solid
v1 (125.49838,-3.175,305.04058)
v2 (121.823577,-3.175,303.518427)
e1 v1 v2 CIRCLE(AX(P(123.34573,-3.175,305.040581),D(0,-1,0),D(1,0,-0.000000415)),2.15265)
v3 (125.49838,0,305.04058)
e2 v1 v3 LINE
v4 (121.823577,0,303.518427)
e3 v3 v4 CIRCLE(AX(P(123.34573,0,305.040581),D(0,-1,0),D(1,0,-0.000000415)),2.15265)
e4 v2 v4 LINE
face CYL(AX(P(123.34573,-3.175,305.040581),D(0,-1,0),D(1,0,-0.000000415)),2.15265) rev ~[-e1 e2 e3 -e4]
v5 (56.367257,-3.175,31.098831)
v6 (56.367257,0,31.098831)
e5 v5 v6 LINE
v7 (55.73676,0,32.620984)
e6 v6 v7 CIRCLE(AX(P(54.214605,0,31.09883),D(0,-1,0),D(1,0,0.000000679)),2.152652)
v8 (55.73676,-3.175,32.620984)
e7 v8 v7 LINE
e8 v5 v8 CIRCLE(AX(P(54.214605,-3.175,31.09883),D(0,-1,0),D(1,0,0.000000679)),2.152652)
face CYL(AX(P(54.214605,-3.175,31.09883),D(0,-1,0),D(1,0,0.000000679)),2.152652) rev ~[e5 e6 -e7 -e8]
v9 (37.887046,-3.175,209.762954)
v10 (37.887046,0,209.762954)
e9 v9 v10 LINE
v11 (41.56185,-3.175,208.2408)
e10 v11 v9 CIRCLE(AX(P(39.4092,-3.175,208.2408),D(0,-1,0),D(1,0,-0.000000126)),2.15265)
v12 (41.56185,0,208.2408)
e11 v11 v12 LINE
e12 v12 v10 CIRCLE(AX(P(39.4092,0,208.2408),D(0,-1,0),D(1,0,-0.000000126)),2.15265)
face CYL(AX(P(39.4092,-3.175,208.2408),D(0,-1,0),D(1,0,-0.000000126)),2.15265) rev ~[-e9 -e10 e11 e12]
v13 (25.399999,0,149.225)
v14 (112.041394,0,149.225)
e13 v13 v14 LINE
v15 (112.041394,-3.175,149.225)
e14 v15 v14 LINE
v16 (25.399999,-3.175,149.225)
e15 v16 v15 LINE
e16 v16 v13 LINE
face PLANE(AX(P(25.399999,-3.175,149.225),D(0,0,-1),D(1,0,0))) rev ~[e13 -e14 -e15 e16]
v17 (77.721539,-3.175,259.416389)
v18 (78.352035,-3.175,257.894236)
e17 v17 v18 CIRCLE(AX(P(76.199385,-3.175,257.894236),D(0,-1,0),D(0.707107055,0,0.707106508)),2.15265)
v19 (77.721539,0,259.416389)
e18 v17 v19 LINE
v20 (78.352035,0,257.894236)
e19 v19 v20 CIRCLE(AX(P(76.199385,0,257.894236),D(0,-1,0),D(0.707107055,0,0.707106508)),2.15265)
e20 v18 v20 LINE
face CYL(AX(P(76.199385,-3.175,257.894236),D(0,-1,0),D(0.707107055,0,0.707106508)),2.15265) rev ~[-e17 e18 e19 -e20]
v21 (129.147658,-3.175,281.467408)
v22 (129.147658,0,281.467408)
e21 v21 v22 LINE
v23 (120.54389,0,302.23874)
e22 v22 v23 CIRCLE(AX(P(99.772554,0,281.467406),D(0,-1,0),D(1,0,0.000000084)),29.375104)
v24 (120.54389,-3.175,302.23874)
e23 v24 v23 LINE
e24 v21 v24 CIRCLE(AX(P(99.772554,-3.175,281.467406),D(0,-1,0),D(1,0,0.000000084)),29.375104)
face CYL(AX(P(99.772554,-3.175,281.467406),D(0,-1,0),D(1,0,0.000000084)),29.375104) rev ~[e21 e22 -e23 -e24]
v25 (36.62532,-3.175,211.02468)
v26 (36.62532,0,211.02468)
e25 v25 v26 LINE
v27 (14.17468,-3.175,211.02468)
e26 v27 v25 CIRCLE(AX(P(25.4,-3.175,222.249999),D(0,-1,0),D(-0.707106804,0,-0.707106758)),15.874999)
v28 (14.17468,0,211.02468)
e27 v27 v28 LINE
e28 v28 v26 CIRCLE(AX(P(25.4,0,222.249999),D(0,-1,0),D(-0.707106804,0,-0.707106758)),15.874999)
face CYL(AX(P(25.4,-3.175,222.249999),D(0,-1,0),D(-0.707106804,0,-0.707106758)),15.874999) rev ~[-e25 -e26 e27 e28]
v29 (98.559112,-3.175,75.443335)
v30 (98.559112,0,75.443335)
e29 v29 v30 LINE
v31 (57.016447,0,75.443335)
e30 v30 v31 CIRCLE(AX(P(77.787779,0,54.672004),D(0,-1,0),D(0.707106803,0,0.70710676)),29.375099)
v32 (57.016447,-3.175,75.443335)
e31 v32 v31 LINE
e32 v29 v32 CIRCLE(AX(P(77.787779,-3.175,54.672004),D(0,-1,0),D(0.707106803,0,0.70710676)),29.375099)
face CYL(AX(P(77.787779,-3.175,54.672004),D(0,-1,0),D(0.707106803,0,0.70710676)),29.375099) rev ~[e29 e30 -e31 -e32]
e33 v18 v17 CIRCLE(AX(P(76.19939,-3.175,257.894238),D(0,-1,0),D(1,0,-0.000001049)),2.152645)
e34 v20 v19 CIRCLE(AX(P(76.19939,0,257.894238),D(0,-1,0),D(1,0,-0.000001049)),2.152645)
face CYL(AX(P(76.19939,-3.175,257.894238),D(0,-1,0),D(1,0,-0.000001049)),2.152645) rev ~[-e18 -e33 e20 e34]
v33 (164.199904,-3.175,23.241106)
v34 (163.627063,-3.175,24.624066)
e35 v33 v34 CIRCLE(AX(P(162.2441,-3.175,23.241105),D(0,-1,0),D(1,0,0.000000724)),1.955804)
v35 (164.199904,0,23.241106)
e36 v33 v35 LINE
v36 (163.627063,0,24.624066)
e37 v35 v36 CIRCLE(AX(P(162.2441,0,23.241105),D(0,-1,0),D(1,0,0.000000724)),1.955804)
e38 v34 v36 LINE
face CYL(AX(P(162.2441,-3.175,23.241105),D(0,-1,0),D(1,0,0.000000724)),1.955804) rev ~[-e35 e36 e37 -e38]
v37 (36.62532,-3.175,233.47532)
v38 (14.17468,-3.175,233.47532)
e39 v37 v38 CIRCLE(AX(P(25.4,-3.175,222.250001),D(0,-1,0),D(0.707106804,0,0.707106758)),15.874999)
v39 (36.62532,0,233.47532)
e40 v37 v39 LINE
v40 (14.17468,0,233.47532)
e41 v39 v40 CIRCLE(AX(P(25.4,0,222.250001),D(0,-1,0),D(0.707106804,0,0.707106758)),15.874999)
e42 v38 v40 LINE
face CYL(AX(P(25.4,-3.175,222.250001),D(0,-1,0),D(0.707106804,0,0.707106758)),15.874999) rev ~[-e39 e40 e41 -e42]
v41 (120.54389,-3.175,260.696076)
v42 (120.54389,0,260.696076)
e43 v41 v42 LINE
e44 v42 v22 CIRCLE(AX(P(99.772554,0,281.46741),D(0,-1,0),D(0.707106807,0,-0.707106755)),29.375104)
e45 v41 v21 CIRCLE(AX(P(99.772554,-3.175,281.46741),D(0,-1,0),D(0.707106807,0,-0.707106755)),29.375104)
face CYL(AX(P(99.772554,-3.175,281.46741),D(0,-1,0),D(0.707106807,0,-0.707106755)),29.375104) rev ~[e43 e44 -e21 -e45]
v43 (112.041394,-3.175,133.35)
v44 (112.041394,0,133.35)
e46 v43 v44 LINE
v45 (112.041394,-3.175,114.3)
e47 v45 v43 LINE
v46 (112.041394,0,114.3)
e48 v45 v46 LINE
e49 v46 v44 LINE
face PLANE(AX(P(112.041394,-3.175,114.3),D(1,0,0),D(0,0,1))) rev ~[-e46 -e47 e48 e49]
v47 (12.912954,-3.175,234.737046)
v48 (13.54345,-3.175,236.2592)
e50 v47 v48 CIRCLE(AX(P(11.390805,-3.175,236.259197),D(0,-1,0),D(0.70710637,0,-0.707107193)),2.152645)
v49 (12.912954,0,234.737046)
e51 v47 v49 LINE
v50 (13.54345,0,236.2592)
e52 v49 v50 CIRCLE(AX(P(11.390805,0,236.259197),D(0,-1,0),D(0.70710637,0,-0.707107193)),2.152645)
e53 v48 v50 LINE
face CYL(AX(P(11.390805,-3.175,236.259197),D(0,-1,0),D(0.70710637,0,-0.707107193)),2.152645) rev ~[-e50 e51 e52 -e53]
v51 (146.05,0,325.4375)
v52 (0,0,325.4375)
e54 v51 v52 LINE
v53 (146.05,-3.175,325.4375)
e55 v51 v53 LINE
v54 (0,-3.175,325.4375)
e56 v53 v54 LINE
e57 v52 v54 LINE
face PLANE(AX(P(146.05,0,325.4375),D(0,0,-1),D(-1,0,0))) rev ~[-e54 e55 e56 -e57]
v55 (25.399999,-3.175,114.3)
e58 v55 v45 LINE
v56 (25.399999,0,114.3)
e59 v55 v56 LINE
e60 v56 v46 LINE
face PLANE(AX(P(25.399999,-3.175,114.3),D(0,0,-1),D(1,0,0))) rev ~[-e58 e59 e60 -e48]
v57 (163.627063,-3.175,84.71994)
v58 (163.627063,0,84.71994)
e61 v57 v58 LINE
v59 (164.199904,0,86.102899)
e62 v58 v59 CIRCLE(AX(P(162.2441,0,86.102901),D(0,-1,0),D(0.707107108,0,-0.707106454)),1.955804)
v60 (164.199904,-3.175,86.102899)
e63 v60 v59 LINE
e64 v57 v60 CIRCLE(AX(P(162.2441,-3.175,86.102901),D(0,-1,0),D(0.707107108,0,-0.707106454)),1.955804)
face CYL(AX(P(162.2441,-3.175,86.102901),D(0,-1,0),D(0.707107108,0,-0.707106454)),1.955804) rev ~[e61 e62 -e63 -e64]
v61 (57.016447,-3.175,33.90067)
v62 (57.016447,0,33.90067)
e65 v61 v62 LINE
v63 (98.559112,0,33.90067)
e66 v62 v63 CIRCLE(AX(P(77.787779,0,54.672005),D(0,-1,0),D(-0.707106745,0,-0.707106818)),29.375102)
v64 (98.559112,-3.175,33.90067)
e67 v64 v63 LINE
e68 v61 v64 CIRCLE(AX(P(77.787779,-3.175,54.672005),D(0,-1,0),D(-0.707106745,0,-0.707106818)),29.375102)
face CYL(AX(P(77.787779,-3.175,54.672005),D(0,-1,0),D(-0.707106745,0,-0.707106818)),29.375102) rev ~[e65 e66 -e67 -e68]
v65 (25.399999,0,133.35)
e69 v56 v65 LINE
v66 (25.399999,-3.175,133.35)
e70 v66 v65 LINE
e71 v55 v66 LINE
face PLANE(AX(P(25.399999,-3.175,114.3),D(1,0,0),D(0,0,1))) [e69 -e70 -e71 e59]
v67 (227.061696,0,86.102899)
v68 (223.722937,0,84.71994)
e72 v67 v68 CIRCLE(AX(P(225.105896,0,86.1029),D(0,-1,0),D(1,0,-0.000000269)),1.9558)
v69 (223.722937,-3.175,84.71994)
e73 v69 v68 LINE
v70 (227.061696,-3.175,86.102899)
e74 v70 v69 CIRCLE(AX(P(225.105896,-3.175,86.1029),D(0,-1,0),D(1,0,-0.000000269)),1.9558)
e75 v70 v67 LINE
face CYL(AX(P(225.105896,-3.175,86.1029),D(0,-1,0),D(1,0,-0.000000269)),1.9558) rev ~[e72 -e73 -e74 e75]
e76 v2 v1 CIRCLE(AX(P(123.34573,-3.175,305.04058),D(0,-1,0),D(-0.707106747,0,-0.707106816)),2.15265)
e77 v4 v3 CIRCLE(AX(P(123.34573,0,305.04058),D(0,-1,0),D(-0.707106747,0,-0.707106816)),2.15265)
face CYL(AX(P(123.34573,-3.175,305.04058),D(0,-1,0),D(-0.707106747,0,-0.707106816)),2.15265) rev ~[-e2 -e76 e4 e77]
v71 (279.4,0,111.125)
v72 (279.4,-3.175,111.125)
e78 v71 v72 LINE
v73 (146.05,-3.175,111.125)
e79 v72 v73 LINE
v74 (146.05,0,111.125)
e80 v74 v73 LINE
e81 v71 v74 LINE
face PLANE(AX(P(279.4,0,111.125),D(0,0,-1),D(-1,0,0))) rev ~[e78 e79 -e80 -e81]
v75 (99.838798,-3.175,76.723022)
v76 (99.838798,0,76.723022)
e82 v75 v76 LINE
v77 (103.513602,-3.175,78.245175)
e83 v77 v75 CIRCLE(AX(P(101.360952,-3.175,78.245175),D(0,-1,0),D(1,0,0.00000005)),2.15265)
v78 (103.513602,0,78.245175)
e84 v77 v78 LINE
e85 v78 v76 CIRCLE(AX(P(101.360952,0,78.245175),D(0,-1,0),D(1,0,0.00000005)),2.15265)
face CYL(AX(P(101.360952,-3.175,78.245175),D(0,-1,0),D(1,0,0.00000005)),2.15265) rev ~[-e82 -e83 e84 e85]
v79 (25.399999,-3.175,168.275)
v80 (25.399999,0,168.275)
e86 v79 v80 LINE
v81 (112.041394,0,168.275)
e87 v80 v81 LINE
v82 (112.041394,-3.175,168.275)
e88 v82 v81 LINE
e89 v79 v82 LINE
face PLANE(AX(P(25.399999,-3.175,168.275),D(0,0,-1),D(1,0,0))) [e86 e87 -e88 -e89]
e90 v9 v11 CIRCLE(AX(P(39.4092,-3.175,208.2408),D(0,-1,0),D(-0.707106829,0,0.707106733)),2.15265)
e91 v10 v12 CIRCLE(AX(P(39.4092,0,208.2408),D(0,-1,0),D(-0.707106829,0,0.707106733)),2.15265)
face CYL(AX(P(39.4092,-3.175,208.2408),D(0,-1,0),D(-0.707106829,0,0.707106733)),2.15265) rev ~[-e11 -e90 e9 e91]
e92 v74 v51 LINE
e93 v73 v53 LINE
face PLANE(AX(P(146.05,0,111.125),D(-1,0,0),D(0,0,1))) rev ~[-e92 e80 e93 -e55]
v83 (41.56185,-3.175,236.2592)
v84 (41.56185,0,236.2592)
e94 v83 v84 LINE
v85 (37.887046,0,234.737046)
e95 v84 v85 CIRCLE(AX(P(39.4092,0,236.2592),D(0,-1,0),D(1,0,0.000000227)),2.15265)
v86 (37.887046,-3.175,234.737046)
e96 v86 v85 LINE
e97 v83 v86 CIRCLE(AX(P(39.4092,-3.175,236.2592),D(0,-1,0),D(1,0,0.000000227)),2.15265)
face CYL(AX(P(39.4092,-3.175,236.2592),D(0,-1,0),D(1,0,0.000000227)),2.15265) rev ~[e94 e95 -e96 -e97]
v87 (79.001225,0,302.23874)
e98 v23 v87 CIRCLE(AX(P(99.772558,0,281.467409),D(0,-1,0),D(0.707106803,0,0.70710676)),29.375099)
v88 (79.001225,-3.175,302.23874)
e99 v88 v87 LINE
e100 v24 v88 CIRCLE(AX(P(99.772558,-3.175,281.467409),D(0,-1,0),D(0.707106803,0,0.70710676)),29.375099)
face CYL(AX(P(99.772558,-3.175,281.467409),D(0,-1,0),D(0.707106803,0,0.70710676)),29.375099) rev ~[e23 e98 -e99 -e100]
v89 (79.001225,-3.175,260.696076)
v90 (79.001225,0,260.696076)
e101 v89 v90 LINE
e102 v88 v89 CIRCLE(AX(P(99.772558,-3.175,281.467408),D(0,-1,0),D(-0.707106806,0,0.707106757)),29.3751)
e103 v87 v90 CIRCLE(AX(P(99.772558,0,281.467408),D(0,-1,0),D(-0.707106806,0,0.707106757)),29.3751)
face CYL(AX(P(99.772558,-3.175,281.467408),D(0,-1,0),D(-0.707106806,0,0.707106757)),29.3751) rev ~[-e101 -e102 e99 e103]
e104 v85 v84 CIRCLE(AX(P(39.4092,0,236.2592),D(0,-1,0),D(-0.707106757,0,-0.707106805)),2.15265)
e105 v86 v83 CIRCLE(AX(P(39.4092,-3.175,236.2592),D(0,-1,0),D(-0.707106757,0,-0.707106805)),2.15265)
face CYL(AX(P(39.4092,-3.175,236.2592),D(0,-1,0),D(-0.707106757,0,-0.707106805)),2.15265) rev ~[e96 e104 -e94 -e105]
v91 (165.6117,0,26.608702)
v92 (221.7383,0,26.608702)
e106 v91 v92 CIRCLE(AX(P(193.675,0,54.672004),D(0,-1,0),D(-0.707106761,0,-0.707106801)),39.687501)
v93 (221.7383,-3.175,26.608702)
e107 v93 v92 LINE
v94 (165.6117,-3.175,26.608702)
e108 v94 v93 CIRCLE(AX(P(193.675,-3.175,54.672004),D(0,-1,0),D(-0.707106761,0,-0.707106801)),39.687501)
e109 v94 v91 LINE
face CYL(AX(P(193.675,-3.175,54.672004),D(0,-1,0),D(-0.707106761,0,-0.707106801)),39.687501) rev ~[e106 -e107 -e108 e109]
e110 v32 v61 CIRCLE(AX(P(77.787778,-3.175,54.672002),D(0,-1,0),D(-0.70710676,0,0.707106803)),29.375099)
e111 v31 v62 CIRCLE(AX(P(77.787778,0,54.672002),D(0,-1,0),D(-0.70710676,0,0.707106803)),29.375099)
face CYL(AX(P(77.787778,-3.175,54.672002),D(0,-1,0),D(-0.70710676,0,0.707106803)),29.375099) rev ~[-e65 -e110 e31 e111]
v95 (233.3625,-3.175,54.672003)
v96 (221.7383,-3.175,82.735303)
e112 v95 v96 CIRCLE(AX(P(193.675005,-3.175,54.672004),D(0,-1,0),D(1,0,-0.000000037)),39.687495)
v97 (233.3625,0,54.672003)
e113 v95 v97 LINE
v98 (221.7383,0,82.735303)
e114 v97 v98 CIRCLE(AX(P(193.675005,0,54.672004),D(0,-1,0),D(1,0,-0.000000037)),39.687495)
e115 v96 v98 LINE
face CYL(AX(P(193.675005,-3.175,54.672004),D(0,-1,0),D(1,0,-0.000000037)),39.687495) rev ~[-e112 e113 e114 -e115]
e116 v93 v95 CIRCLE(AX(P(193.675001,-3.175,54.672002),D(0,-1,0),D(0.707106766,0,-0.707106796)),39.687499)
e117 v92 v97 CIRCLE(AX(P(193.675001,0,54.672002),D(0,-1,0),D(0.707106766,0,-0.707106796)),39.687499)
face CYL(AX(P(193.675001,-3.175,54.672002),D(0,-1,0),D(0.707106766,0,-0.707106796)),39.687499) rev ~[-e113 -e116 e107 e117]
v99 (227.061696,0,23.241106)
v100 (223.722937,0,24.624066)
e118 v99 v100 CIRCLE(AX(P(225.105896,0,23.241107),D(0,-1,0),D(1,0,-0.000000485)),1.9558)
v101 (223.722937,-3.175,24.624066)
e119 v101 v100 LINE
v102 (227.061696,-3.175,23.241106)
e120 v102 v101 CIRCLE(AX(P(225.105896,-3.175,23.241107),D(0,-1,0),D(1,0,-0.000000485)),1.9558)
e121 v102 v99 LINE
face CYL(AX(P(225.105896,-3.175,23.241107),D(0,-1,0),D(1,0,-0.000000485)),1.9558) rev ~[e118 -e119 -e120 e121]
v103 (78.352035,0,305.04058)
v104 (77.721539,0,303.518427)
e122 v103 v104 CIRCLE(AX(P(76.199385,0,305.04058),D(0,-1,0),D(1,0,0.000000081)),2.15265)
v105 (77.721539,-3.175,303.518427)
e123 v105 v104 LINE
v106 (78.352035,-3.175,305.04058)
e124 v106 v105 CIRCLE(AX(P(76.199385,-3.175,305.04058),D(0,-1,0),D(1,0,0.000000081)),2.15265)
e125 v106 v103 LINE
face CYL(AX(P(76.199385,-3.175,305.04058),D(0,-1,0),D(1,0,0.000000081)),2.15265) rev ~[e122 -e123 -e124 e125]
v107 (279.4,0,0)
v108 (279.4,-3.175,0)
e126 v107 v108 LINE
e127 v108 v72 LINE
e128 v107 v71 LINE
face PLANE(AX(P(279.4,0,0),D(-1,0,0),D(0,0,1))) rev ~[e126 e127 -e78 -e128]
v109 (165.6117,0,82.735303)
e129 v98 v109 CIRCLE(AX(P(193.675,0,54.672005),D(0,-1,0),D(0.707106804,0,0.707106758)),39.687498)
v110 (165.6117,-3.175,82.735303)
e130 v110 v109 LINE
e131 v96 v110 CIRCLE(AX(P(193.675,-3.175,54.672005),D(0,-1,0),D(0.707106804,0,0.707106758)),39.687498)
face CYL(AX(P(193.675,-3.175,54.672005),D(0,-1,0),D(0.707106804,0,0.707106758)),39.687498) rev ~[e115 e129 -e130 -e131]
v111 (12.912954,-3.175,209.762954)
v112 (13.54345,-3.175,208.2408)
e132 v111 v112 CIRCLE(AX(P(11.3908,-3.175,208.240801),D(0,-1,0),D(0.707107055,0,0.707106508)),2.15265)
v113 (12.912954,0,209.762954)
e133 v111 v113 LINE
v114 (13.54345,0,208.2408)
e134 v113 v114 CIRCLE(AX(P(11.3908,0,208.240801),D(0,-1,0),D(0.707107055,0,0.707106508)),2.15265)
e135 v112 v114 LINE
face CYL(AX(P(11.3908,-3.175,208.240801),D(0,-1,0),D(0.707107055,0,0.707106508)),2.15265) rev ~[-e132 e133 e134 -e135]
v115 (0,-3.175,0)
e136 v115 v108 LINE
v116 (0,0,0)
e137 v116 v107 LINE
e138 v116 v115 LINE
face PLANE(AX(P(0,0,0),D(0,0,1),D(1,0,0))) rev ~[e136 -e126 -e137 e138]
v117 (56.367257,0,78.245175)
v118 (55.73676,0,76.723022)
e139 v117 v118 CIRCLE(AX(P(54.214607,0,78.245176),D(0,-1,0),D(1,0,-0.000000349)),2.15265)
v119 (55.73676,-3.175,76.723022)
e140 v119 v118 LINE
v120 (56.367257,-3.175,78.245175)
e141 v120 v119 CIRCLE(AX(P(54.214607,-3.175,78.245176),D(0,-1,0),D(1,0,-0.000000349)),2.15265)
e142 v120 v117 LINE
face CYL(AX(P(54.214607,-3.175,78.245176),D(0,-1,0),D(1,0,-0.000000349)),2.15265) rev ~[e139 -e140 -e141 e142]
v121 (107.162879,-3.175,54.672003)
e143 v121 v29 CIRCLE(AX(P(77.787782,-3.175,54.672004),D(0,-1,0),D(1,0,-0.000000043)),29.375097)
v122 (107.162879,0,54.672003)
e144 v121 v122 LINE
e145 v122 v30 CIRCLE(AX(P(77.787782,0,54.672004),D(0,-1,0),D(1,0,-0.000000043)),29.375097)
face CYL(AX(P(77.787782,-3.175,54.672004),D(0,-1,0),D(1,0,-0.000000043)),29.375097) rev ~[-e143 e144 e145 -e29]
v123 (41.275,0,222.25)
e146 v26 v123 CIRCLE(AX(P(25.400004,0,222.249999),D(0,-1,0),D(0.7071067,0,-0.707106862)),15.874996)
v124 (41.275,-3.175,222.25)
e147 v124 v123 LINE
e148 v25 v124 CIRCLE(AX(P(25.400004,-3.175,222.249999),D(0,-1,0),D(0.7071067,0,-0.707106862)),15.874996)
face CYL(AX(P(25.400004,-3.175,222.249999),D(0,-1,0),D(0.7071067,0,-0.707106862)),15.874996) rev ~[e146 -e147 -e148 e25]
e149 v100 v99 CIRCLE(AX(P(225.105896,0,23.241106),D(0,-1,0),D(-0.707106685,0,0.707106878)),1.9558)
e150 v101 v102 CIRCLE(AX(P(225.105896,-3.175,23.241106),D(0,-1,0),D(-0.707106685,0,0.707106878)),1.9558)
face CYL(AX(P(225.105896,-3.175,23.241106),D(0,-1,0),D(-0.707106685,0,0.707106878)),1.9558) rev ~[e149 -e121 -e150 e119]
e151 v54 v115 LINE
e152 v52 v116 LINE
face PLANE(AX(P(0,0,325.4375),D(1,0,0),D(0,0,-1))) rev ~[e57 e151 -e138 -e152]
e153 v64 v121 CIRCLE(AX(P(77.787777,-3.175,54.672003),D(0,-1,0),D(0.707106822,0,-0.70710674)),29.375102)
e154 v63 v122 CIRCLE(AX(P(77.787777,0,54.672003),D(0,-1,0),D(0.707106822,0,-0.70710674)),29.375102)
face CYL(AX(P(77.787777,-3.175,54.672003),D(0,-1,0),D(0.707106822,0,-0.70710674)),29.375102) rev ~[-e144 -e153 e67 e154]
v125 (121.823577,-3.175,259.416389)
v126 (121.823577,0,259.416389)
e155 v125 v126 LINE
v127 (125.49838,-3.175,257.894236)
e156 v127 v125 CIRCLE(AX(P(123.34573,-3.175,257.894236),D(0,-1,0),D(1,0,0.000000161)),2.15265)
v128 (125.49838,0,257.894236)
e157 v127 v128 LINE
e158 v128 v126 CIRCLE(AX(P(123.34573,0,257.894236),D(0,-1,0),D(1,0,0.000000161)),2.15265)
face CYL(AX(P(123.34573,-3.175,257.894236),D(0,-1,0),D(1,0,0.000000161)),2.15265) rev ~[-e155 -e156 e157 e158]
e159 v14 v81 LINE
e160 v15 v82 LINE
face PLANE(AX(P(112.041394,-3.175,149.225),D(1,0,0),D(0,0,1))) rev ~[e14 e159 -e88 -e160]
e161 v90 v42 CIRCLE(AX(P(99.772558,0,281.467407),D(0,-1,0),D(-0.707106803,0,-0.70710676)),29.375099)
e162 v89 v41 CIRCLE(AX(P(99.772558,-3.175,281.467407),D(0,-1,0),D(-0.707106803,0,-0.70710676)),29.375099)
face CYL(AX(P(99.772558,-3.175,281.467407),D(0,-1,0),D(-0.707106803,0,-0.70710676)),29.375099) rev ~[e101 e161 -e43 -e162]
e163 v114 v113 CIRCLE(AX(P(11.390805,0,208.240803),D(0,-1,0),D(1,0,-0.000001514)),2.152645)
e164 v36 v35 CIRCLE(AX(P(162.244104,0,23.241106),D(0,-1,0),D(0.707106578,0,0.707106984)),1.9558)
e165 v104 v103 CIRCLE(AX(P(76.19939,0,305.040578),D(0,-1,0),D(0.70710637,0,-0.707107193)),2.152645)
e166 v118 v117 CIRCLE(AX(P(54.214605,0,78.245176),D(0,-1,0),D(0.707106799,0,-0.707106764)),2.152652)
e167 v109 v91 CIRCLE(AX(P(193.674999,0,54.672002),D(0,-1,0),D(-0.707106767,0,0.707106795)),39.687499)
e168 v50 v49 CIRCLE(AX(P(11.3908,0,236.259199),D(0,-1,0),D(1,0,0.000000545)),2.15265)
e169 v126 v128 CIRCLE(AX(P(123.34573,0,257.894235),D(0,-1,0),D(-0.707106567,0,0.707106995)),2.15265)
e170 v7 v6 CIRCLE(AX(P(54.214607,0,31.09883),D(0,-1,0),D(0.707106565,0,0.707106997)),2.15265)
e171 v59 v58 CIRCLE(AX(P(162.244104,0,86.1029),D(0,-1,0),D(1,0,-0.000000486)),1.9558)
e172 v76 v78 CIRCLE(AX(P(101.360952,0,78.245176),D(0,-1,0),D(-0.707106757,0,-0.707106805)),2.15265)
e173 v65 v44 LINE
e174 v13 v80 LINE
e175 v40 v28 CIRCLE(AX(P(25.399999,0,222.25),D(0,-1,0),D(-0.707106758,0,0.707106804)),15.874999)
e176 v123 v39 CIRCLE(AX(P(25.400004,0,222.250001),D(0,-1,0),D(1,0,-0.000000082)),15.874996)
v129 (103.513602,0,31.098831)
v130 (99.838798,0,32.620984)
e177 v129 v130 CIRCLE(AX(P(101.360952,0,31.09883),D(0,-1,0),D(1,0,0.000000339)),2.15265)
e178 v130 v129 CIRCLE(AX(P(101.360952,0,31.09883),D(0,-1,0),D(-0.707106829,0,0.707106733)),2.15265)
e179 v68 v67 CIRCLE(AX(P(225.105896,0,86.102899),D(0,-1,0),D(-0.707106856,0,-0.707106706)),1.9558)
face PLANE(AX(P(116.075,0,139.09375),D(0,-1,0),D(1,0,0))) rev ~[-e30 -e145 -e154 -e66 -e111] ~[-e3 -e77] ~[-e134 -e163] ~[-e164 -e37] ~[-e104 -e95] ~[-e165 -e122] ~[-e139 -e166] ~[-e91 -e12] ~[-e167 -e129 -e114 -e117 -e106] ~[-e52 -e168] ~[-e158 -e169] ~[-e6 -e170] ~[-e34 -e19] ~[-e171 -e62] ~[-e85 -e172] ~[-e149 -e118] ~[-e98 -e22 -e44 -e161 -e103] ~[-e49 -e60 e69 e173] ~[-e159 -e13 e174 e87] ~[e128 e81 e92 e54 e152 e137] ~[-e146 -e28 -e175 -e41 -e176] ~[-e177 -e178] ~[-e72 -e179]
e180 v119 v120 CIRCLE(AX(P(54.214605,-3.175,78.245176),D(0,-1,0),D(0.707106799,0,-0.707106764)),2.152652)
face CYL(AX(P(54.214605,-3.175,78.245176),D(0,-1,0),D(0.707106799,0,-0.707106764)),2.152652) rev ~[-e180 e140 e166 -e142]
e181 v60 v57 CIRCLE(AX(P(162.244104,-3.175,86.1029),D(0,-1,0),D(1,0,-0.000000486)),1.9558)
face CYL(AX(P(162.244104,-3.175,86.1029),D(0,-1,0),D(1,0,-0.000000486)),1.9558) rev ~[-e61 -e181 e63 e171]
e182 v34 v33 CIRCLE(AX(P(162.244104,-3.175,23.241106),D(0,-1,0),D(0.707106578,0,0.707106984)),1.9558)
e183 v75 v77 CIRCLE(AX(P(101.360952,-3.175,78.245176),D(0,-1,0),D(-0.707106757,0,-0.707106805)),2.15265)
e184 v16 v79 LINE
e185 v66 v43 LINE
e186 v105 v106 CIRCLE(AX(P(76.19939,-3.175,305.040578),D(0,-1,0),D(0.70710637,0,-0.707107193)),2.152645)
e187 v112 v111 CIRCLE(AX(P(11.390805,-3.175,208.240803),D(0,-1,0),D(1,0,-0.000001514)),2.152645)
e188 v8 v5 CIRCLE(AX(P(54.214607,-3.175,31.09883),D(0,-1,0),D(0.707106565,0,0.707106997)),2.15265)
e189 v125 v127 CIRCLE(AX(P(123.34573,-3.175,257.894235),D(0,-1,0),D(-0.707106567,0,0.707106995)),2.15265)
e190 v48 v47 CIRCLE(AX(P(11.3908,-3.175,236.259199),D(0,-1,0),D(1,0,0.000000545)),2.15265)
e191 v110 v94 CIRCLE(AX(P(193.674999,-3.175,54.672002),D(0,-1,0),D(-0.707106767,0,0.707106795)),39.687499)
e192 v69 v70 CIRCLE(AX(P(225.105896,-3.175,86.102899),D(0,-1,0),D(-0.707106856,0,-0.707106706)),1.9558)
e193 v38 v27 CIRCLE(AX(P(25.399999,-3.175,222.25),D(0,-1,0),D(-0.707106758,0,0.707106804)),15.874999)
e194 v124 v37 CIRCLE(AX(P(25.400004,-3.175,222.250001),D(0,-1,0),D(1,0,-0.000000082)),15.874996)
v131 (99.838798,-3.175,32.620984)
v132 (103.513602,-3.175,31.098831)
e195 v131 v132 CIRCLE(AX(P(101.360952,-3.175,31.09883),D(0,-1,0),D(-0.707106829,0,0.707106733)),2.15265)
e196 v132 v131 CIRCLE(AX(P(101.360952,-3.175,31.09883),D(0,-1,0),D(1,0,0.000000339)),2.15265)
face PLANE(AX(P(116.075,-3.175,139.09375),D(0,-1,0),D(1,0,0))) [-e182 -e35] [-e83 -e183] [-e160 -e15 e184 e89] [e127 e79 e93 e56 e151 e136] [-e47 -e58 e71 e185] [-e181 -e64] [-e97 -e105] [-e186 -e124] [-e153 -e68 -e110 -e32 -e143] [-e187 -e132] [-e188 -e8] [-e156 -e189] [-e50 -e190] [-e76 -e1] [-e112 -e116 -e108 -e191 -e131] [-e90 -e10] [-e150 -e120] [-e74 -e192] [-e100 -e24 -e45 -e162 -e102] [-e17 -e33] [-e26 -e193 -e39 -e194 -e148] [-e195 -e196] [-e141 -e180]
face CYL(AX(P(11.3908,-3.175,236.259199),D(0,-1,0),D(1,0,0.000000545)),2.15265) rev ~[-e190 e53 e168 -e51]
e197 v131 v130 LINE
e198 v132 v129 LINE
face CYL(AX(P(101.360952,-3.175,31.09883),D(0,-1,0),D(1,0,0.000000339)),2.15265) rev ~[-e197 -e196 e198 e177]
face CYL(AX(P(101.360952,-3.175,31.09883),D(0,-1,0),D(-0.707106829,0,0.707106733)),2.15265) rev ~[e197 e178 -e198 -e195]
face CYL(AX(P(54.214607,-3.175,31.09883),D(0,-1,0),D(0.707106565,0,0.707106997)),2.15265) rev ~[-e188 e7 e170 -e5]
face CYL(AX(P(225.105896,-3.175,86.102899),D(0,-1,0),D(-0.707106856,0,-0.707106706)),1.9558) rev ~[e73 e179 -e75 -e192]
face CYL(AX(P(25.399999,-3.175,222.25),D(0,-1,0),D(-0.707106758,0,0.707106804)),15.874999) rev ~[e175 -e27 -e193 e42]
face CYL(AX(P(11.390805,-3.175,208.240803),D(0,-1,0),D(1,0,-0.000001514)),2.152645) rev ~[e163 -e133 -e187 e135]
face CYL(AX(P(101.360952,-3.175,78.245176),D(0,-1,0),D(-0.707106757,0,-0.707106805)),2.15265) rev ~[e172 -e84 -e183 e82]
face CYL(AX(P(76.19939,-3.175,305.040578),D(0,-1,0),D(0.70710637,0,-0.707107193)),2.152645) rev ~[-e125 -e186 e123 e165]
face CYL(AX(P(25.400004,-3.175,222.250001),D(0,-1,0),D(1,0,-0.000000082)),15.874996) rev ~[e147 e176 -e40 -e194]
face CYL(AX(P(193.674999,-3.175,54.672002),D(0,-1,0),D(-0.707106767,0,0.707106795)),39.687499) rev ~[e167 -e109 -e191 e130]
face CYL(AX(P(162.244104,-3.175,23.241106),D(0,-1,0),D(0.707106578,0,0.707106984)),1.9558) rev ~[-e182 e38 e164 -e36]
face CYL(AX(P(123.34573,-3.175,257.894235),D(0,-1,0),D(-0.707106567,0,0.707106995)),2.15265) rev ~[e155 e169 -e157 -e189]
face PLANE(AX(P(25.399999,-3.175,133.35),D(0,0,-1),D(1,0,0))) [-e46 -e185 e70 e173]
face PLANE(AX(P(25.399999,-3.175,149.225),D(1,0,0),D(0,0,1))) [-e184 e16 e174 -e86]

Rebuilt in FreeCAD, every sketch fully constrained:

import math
import FreeCAD as App
import Part
import Sketcher
Q = App.Units.Quantity


def add_polygon(sketch, points):
    """Adds a closed chain of lines whose ends are joined by coincident constraints."""
    first, n = sketch.GeometryCount, len(points)
    for a, b in zip(points, points[1:] + points[:1]):
        sketch.addGeometry(Part.LineSegment(App.Vector(*a, 0), App.Vector(*b, 0)), False)
    for i in range(n):
        sketch.addConstraint(Sketcher.Constraint("Coincident", first + i, 2, first + (i + 1) % n, 1))

doc = App.newDocument("Part")
body = doc.addObject("PartDesign::Body", "Body")

sketch1 = body.newObject("Sketcher::SketchObject", "Sketch")
sketch1.AttachmentSupport = (doc.getObject("XZ_Plane"), [""])
sketch1.MapMode = "FlatFace"
add_polygon(sketch1, [(146, 325), (0, 325), (0, 0), (279, 0), (279, 111), (146, 111)])
sketch1.addConstraint(Sketcher.Constraint("Horizontal", 0))
sketch1.addConstraint(Sketcher.Constraint("Vertical", 1))
sketch1.addConstraint(Sketcher.Constraint("Horizontal", 2))
sketch1.addConstraint(Sketcher.Constraint("Vertical", 3))
sketch1.addConstraint(Sketcher.Constraint("Horizontal", 4))
sketch1.addConstraint(Sketcher.Constraint("Vertical", 5))
sketch1.addConstraint(Sketcher.Constraint("Coincident", 1, 2, -1, 1))
sketch1.addConstraint(Sketcher.Constraint("DistanceX", 2, 1, 2, 2, Q("11 in")))
sketch1.addConstraint(Sketcher.Constraint("DistanceX", 0, 2, 0, 1, Q("5.75 in")))
sketch1.addConstraint(Sketcher.Constraint("DistanceY", 1, 2, 1, 1, Q("12.8125 in")))
sketch1.addConstraint(Sketcher.Constraint("DistanceY", 3, 1, 3, 2, Q("4.375 in")))
pad1 = body.newObject("PartDesign::Pad", "Pad")
pad1.Profile = sketch1
pad1.Length = Q("0.125 in")

sketch2 = body.newObject("Sketcher::SketchObject", "Sketch001")
sketch2.AttachmentSupport = (doc.getObject("XZ_Plane"), [""])
sketch2.MapMode = "FlatFace"
sketch2.AttachmentOffset = App.Placement(App.Vector(0, 0, 0.125 * 25.4), App.Rotation())
sketch2.addGeometry(Part.ArcOfCircle(Part.Circle(App.Vector(193.7, 54.7, 0), App.Vector(0, 0, 1), 39.7), math.radians(-45), math.radians(0)), False)
sketch2.addGeometry(Part.ArcOfCircle(Part.Circle(App.Vector(193.7, 54.7, 0), App.Vector(0, 0, 1), 39.7), math.radians(0), math.radians(45)), False)
sketch2.addGeometry(Part.ArcOfCircle(Part.Circle(App.Vector(193.7, 54.7, 0), App.Vector(0, 0, 1), 39.7), math.radians(45), math.radians(135)), False)
sketch2.addGeometry(Part.ArcOfCircle(Part.Circle(App.Vector(193.7, 54.7, 0), App.Vector(0, 0, 1), 39.7), math.radians(135), math.radians(225)), False)
sketch2.addGeometry(Part.ArcOfCircle(Part.Circle(App.Vector(193.7, 54.7, 0), App.Vector(0, 0, 1), 39.7), math.radians(-135), math.radians(-45)), False)
sketch2.addGeometry(Part.ArcOfCircle(Part.Circle(App.Vector(225.1, 23.2, 0), App.Vector(0, 0, 1), 2), math.radians(0), math.radians(135)), False)
sketch2.addGeometry(Part.ArcOfCircle(Part.Circle(App.Vector(225.1, 23.2, 0), App.Vector(0, 0, 1), 2), math.radians(135), math.radians(360)), False)
sketch2.addGeometry(Part.ArcOfCircle(Part.Circle(App.Vector(162.2, 23.2, 0), App.Vector(0, 0, 1), 2), math.radians(0), math.radians(45)), False)
sketch2.addGeometry(Part.ArcOfCircle(Part.Circle(App.Vector(162.2, 23.2, 0), App.Vector(0, 0, 1), 2), math.radians(45), math.radians(360)), False)
sketch2.addGeometry(Part.ArcOfCircle(Part.Circle(App.Vector(162.2, 86.1, 0), App.Vector(0, 0, 1), 2), math.radians(0), math.radians(315)), False)
sketch2.addGeometry(Part.ArcOfCircle(Part.Circle(App.Vector(162.2, 86.1, 0), App.Vector(0, 0, 1), 2), math.radians(-45), math.radians(0)), False)
sketch2.addGeometry(Part.ArcOfCircle(Part.Circle(App.Vector(225.1, 86.1, 0), App.Vector(0, 0, 1), 2), math.radians(0), math.radians(225)), False)
sketch2.addGeometry(Part.ArcOfCircle(Part.Circle(App.Vector(225.1, 86.1, 0), App.Vector(0, 0, 1), 2), math.radians(-135), math.radians(0)), False)
sketch2.addGeometry(Part.ArcOfCircle(Part.Circle(App.Vector(25.4, 222.2, 0), App.Vector(0, 0, 1), 15.9), math.radians(-45), math.radians(0)), False)
sketch2.addGeometry(Part.ArcOfCircle(Part.Circle(App.Vector(25.4, 222.3, 0), App.Vector(0, 0, 1), 15.9), math.radians(0), math.radians(45)), False)
sketch2.addGeometry(Part.ArcOfCircle(Part.Circle(App.Vector(25.4, 222.3, 0), App.Vector(0, 0, 1), 15.9), math.radians(45), math.radians(135)), False)
sketch2.addGeometry(Part.ArcOfCircle(Part.Circle(App.Vector(25.4, 222.2, 0), App.Vector(0, 0, 1), 15.9), math.radians(135), math.radians(225)), False)
sketch2.addGeometry(Part.ArcOfCircle(Part.Circle(App.Vector(25.4, 222.2, 0), App.Vector(0, 0, 1), 15.9), math.radians(-135), math.radians(-45)), False)
sketch2.addGeometry(Part.ArcOfCircle(Part.Circle(App.Vector(39.4, 208.2, 0), App.Vector(0, 0, 1), 2.2), math.radians(0), math.radians(135)), False)
sketch2.addGeometry(Part.ArcOfCircle(Part.Circle(App.Vector(39.4, 208.2, 0), App.Vector(0, 0, 1), 2.2), math.radians(135), math.radians(360)), False)
sketch2.addGeometry(Part.ArcOfCircle(Part.Circle(App.Vector(11.4, 208.2, 0), App.Vector(0, 0, 1), 2.2), math.radians(0), math.radians(45)), False)
sketch2.addGeometry(Part.ArcOfCircle(Part.Circle(App.Vector(11.4, 208.2, 0), App.Vector(0, 0, 1), 2.2), math.radians(45), math.radians(360)), False)
sketch2.addGeometry(Part.ArcOfCircle(Part.Circle(App.Vector(11.4, 236.3, 0), App.Vector(0, 0, 1), 2.2), math.radians(0), math.radians(315)), False)
sketch2.addGeometry(Part.ArcOfCircle(Part.Circle(App.Vector(11.4, 236.3, 0), App.Vector(0, 0, 1), 2.2), math.radians(-45), math.radians(0)), False)
sketch2.addGeometry(Part.ArcOfCircle(Part.Circle(App.Vector(39.4, 236.3, 0), App.Vector(0, 0, 1), 2.2), math.radians(0), math.radians(225)), False)
sketch2.addGeometry(Part.ArcOfCircle(Part.Circle(App.Vector(39.4, 236.3, 0), App.Vector(0, 0, 1), 2.2), math.radians(-135), math.radians(0)), False)
sketch2.addGeometry(Part.ArcOfCircle(Part.Circle(App.Vector(99.8, 281.5, 0), App.Vector(0, 0, 1), 29.4), math.radians(-45), math.radians(0)), False)
sketch2.addGeometry(Part.ArcOfCircle(Part.Circle(App.Vector(99.8, 281.5, 0), App.Vector(0, 0, 1), 29.4), math.radians(0), math.radians(45)), False)
sketch2.addGeometry(Part.ArcOfCircle(Part.Circle(App.Vector(99.8, 281.5, 0), App.Vector(0, 0, 1), 29.4), math.radians(45), math.radians(135)), False)
sketch2.addGeometry(Part.ArcOfCircle(Part.Circle(App.Vector(99.8, 281.5, 0), App.Vector(0, 0, 1), 29.4), math.radians(135), math.radians(225)), False)
sketch2.addGeometry(Part.ArcOfCircle(Part.Circle(App.Vector(99.8, 281.5, 0), App.Vector(0, 0, 1), 29.4), math.radians(-135), math.radians(-45)), False)
sketch2.addGeometry(Part.ArcOfCircle(Part.Circle(App.Vector(123.3, 257.9, 0), App.Vector(0, 0, 1), 2.2), math.radians(0), math.radians(135)), False)
sketch2.addGeometry(Part.ArcOfCircle(Part.Circle(App.Vector(123.3, 257.9, 0), App.Vector(0, 0, 1), 2.2), math.radians(135), math.radians(360)), False)
sketch2.addGeometry(Part.ArcOfCircle(Part.Circle(App.Vector(76.2, 257.9, 0), App.Vector(0, 0, 1), 2.2), math.radians(0), math.radians(45)), False)
sketch2.addGeometry(Part.ArcOfCircle(Part.Circle(App.Vector(76.2, 257.9, 0), App.Vector(0, 0, 1), 2.2), math.radians(45), math.radians(360)), False)
sketch2.addGeometry(Part.ArcOfCircle(Part.Circle(App.Vector(76.2, 305, 0), App.Vector(0, 0, 1), 2.2), math.radians(0), math.radians(315)), False)
sketch2.addGeometry(Part.ArcOfCircle(Part.Circle(App.Vector(76.2, 305, 0), App.Vector(0, 0, 1), 2.2), math.radians(-45), math.radians(0)), False)
sketch2.addGeometry(Part.ArcOfCircle(Part.Circle(App.Vector(123.3, 305, 0), App.Vector(0, 0, 1), 2.2), math.radians(0), math.radians(225)), False)
sketch2.addGeometry(Part.ArcOfCircle(Part.Circle(App.Vector(123.3, 305, 0), App.Vector(0, 0, 1), 2.2), math.radians(-135), math.radians(0)), False)
add_polygon(sketch2, [(25.4, 168.3), (25.4, 149.2), (112, 149.2), (112, 168.3)])
add_polygon(sketch2, [(25.4, 133.3), (25.4, 114.3), (112, 114.3), (112, 133.3)])
sketch2.addGeometry(Part.ArcOfCircle(Part.Circle(App.Vector(77.8, 54.7, 0), App.Vector(0, 0, 1), 29.4), math.radians(-45), math.radians(0)), False)
sketch2.addGeometry(Part.ArcOfCircle(Part.Circle(App.Vector(77.8, 54.7, 0), App.Vector(0, 0, 1), 29.4), math.radians(0), math.radians(45)), False)
sketch2.addGeometry(Part.ArcOfCircle(Part.Circle(App.Vector(77.8, 54.7, 0), App.Vector(0, 0, 1), 29.4), math.radians(45), math.radians(135)), False)
sketch2.addGeometry(Part.ArcOfCircle(Part.Circle(App.Vector(77.8, 54.7, 0), App.Vector(0, 0, 1), 29.4), math.radians(135), math.radians(225)), False)
sketch2.addGeometry(Part.ArcOfCircle(Part.Circle(App.Vector(77.8, 54.7, 0), App.Vector(0, 0, 1), 29.4), math.radians(-135), math.radians(-45)), False)
sketch2.addGeometry(Part.ArcOfCircle(Part.Circle(App.Vector(101.4, 31.1, 0), App.Vector(0, 0, 1), 2.2), math.radians(0), math.radians(135)), False)
sketch2.addGeometry(Part.ArcOfCircle(Part.Circle(App.Vector(101.4, 31.1, 0), App.Vector(0, 0, 1), 2.2), math.radians(135), math.radians(360)), False)
sketch2.addGeometry(Part.ArcOfCircle(Part.Circle(App.Vector(54.2, 31.1, 0), App.Vector(0, 0, 1), 2.2), math.radians(0), math.radians(45)), False)
sketch2.addGeometry(Part.ArcOfCircle(Part.Circle(App.Vector(54.2, 31.1, 0), App.Vector(0, 0, 1), 2.2), math.radians(45), math.radians(360)), False)
sketch2.addGeometry(Part.ArcOfCircle(Part.Circle(App.Vector(54.2, 78.2, 0), App.Vector(0, 0, 1), 2.2), math.radians(0), math.radians(315)), False)
sketch2.addGeometry(Part.ArcOfCircle(Part.Circle(App.Vector(54.2, 78.2, 0), App.Vector(0, 0, 1), 2.2), math.radians(-45), math.radians(0)), False)
sketch2.addGeometry(Part.ArcOfCircle(Part.Circle(App.Vector(101.4, 78.2, 0), App.Vector(0, 0, 1), 2.2), math.radians(0), math.radians(225)), False)
sketch2.addGeometry(Part.ArcOfCircle(Part.Circle(App.Vector(101.4, 78.2, 0), App.Vector(0, 0, 1), 2.2), math.radians(-135), math.radians(0)), False)
sketch2.addConstraint(Sketcher.Constraint("Tangent", 0, 2, 1, 1))
sketch2.addConstraint(Sketcher.Constraint("Tangent", 1, 2, 2, 1))
sketch2.addConstraint(Sketcher.Constraint("Tangent", 2, 2, 3, 1))
sketch2.addConstraint(Sketcher.Constraint("Tangent", 3, 2, 4, 1))
sketch2.addConstraint(Sketcher.Constraint("Tangent", 4, 2, 0, 1))
sketch2.addConstraint(Sketcher.Constraint("Tangent", 5, 1, 6, 2))
sketch2.addConstraint(Sketcher.Constraint("Coincident", 6, 1, 5, 2))
sketch2.addConstraint(Sketcher.Constraint("Tangent", 7, 1, 8, 2))
sketch2.addConstraint(Sketcher.Constraint("Coincident", 8, 1, 7, 2))
sketch2.addConstraint(Sketcher.Constraint("Tangent", 9, 1, 10, 2))
sketch2.addConstraint(Sketcher.Constraint("Coincident", 10, 1, 9, 2))
sketch2.addConstraint(Sketcher.Constraint("Tangent", 11, 1, 12, 2))
sketch2.addConstraint(Sketcher.Constraint("Coincident", 12, 1, 11, 2))
sketch2.addConstraint(Sketcher.Constraint("Tangent", 13, 2, 14, 1))
sketch2.addConstraint(Sketcher.Constraint("Tangent", 14, 2, 15, 1))
sketch2.addConstraint(Sketcher.Constraint("Tangent", 15, 2, 16, 1))
sketch2.addConstraint(Sketcher.Constraint("Tangent", 16, 2, 17, 1))
sketch2.addConstraint(Sketcher.Constraint("Tangent", 17, 2, 13, 1))
sketch2.addConstraint(Sketcher.Constraint("Tangent", 18, 1, 19, 2))
sketch2.addConstraint(Sketcher.Constraint("Coincident", 19, 1, 18, 2))
sketch2.addConstraint(Sketcher.Constraint("Tangent", 20, 1, 21, 2))
sketch2.addConstraint(Sketcher.Constraint("Coincident", 21, 1, 20, 2))
sketch2.addConstraint(Sketcher.Constraint("Tangent", 22, 1, 23, 2))
sketch2.addConstraint(Sketcher.Constraint("Coincident", 23, 1, 22, 2))
sketch2.addConstraint(Sketcher.Constraint("Tangent", 24, 1, 25, 2))
sketch2.addConstraint(Sketcher.Constraint("Coincident", 25, 1, 24, 2))
sketch2.addConstraint(Sketcher.Constraint("Tangent", 26, 2, 27, 1))
sketch2.addConstraint(Sketcher.Constraint("Tangent", 27, 2, 28, 1))
sketch2.addConstraint(Sketcher.Constraint("Tangent", 28, 2, 29, 1))
sketch2.addConstraint(Sketcher.Constraint("Tangent", 29, 2, 30, 1))
sketch2.addConstraint(Sketcher.Constraint("Tangent", 30, 2, 26, 1))
sketch2.addConstraint(Sketcher.Constraint("Tangent", 31, 1, 32, 2))
sketch2.addConstraint(Sketcher.Constraint("Coincident", 32, 1, 31, 2))
sketch2.addConstraint(Sketcher.Constraint("Tangent", 33, 1, 34, 2))
sketch2.addConstraint(Sketcher.Constraint("Coincident", 34, 1, 33, 2))
sketch2.addConstraint(Sketcher.Constraint("Tangent", 35, 1, 36, 2))
sketch2.addConstraint(Sketcher.Constraint("Coincident", 36, 1, 35, 2))
sketch2.addConstraint(Sketcher.Constraint("Tangent", 37, 1, 38, 2))
sketch2.addConstraint(Sketcher.Constraint("Coincident", 38, 1, 37, 2))
sketch2.addConstraint(Sketcher.Constraint("Tangent", 47, 2, 48, 1))
sketch2.addConstraint(Sketcher.Constraint("Tangent", 48, 2, 49, 1))
sketch2.addConstraint(Sketcher.Constraint("Tangent", 49, 2, 50, 1))
sketch2.addConstraint(Sketcher.Constraint("Tangent", 50, 2, 51, 1))
sketch2.addConstraint(Sketcher.Constraint("Tangent", 51, 2, 47, 1))
sketch2.addConstraint(Sketcher.Constraint("Tangent", 52, 1, 53, 2))
sketch2.addConstraint(Sketcher.Constraint("Coincident", 53, 1, 52, 2))
sketch2.addConstraint(Sketcher.Constraint("Tangent", 54, 1, 55, 2))
sketch2.addConstraint(Sketcher.Constraint("Coincident", 55, 1, 54, 2))
sketch2.addConstraint(Sketcher.Constraint("Tangent", 56, 1, 57, 2))
sketch2.addConstraint(Sketcher.Constraint("Coincident", 57, 1, 56, 2))
sketch2.addConstraint(Sketcher.Constraint("Tangent", 58, 1, 59, 2))
sketch2.addConstraint(Sketcher.Constraint("Coincident", 59, 1, 58, 2))
sketch2.addConstraint(Sketcher.Constraint("Vertical", 39))
sketch2.addConstraint(Sketcher.Constraint("Horizontal", 40))
sketch2.addConstraint(Sketcher.Constraint("Vertical", 41))
sketch2.addConstraint(Sketcher.Constraint("Horizontal", 42))
sketch2.addConstraint(Sketcher.Constraint("Vertical", 43))
sketch2.addConstraint(Sketcher.Constraint("Horizontal", 44))
sketch2.addConstraint(Sketcher.Constraint("Vertical", 45))
sketch2.addConstraint(Sketcher.Constraint("Horizontal", 46))
sketch2.addConstraint(Sketcher.Constraint("Coincident", 2, 3, 0, 3))
sketch2.addConstraint(Sketcher.Constraint("Coincident", 15, 3, 13, 3))
sketch2.addConstraint(Sketcher.Constraint("Coincident", 28, 3, 26, 3))
sketch2.addConstraint(Sketcher.Constraint("Coincident", 49, 3, 47, 3))
sketch2.addConstraint(Sketcher.Constraint("Equal", 6, 8))
sketch2.addConstraint(Sketcher.Constraint("Equal", 8, 9))
sketch2.addConstraint(Sketcher.Constraint("Equal", 9, 11))
sketch2.addConstraint(Sketcher.Constraint("Equal", 19, 21))
sketch2.addConstraint(Sketcher.Constraint("Equal", 21, 22))
sketch2.addConstraint(Sketcher.Constraint("Equal", 22, 24))
sketch2.addConstraint(Sketcher.Constraint("Equal", 25, 31))
sketch2.addConstraint(Sketcher.Constraint("Equal", 23, 33))
sketch2.addConstraint(Sketcher.Constraint("Equal", 34, 35))
sketch2.addConstraint(Sketcher.Constraint("Equal", 35, 37))
sketch2.addConstraint(Sketcher.Constraint("Equal", 29, 47))
sketch2.addConstraint(Sketcher.Constraint("Equal", 38, 52))
sketch2.addConstraint(Sketcher.Constraint("Equal", 53, 54))
sketch2.addConstraint(Sketcher.Constraint("Equal", 55, 56))
sketch2.addConstraint(Sketcher.Constraint("Equal", 57, 58))
sketch2.addConstraint(Sketcher.Constraint("Horizontal", 6, 3, 7, 3))
sketch2.addConstraint(Sketcher.Constraint("Horizontal", 10, 3, 11, 3))
sketch2.addConstraint(Sketcher.Constraint("Horizontal", 19, 3, 21, 3))
sketch2.addConstraint(Sketcher.Constraint("Horizontal", 22, 3, 24, 3))
sketch2.addConstraint(Sketcher.Constraint("Horizontal", 32, 3, 34, 3))
sketch2.addConstraint(Sketcher.Constraint("Horizontal", 35, 3, 37, 3))
sketch2.addConstraint(Sketcher.Constraint("Horizontal", 4, 3, 47, 3))
sketch2.addConstraint(Sketcher.Constraint("Horizontal", 53, 3, 54, 3))
sketch2.addConstraint(Sketcher.Constraint("Horizontal", 57, 3, 58, 3))
sketch2.addConstraint(Sketcher.Constraint("Horizontal", 51, 3, 0, 2))
sketch2.addConstraint(Sketcher.Constraint("Horizontal", 1, 2, 2, 2))
sketch2.addConstraint(Sketcher.Constraint("Horizontal", 3, 2, 4, 2))
sketch2.addConstraint(Sketcher.Constraint("Horizontal", 8, 3, 5, 1))
sketch2.addConstraint(Sketcher.Constraint("Horizontal", 5, 1, 7, 1))
sketch2.addConstraint(Sketcher.Constraint("Horizontal", 6, 1, 8, 1))
sketch2.addConstraint(Sketcher.Constraint("Horizontal", 12, 3, 9, 1))
sketch2.addConstraint(Sketcher.Constraint("Horizontal", 9, 1, 11, 1))
sketch2.addConstraint(Sketcher.Constraint("Horizontal", 10, 1, 12, 1))
sketch2.addConstraint(Sketcher.Constraint("Horizontal", 17, 3, 13, 2))
sketch2.addConstraint(Sketcher.Constraint("Horizontal", 14, 2, 15, 2))
sketch2.addConstraint(Sketcher.Constraint("Horizontal", 16, 2, 17, 2))
sketch2.addConstraint(Sketcher.Constraint("Horizontal", 21, 3, 18, 1))
sketch2.addConstraint(Sketcher.Constraint("Horizontal", 18, 1, 20, 1))
sketch2.addConstraint(Sketcher.Constraint("Horizontal", 19, 1, 21, 1))
sketch2.addConstraint(Sketcher.Constraint("Horizontal", 25, 3, 22, 1))
sketch2.addConstraint(Sketcher.Constraint("Horizontal", 22, 1, 24, 1))
sketch2.addConstraint(Sketcher.Constraint("Horizontal", 23, 1, 25, 1))
sketch2.addConstraint(Sketcher.Constraint("Horizontal", 30, 3, 26, 2))
sketch2.addConstraint(Sketcher.Constraint("Horizontal", 27, 2, 28, 2))
sketch2.addConstraint(Sketcher.Constraint("Horizontal", 29, 2, 30, 2))
sketch2.addConstraint(Sketcher.Constraint("Horizontal", 34, 3, 31, 1))
sketch2.addConstraint(Sketcher.Constraint("Horizontal", 31, 1, 33, 1))
sketch2.addConstraint(Sketcher.Constraint("Horizontal", 32, 1, 34, 1))
sketch2.addConstraint(Sketcher.Constraint("Horizontal", 38, 3, 35, 1))
sketch2.addConstraint(Sketcher.Constraint("Horizontal", 35, 1, 37, 1))
sketch2.addConstraint(Sketcher.Constraint("Horizontal", 36, 1, 38, 1))
sketch2.addConstraint(Sketcher.Constraint("Horizontal", 0, 2, 47, 2))
sketch2.addConstraint(Sketcher.Constraint("Horizontal", 48, 2, 49, 2))
sketch2.addConstraint(Sketcher.Constraint("Horizontal", 50, 2, 51, 2))
sketch2.addConstraint(Sketcher.Constraint("Horizontal", 55, 3, 52, 1))
sketch2.addConstraint(Sketcher.Constraint("Horizontal", 52, 1, 54, 1))
sketch2.addConstraint(Sketcher.Constraint("Horizontal", 53, 1, 55, 1))
sketch2.addConstraint(Sketcher.Constraint("Horizontal", 59, 3, 56, 1))
sketch2.addConstraint(Sketcher.Constraint("Horizontal", 56, 1, 58, 1))
sketch2.addConstraint(Sketcher.Constraint("Horizontal", 57, 1, 59, 1))
sketch2.addConstraint(Sketcher.Constraint("Vertical", 8, 3, 9, 3))
sketch2.addConstraint(Sketcher.Constraint("Vertical", 6, 3, 11, 3))
sketch2.addConstraint(Sketcher.Constraint("Vertical", 21, 3, 22, 3))
sketch2.addConstraint(Sketcher.Constraint("Vertical", 19, 3, 24, 3))
sketch2.addConstraint(Sketcher.Constraint("Vertical", 34, 3, 35, 3))
sketch2.addConstraint(Sketcher.Constraint("Vertical", 32, 3, 37, 3))
sketch2.addConstraint(Sketcher.Constraint("Vertical", 55, 3, 56, 3))
sketch2.addConstraint(Sketcher.Constraint("Vertical", 53, 3, 58, 3))
sketch2.addConstraint(Sketcher.Constraint("Vertical", 2, 2, 3, 2))
sketch2.addConstraint(Sketcher.Constraint("Vertical", 8, 1, 10, 1))
sketch2.addConstraint(Sketcher.Constraint("Vertical", 15, 2, 16, 2))
sketch2.addConstraint(Sketcher.Constraint("Vertical", 21, 1, 23, 1))
sketch2.addConstraint(Sketcher.Constraint("Vertical", 28, 2, 29, 2))
sketch2.addConstraint(Sketcher.Constraint("Vertical", 34, 1, 36, 1))
sketch2.addConstraint(Sketcher.Constraint("Vertical", 17, 3, 39, 2))
sketch2.addConstraint(Sketcher.Constraint("Vertical", 42, 2, 43, 2))
sketch2.addConstraint(Sketcher.Constraint("Vertical", 41, 2, 44, 2))
sketch2.addConstraint(Sketcher.Constraint("Vertical", 49, 2, 50, 2))
sketch2.addConstraint(Sketcher.Constraint("Vertical", 55, 1, 57, 1))
sketch2.addConstraint(Sketcher.Constraint("Equal", 41, 43))
sketch2.addConstraint(Sketcher.Constraint("DistanceX", -1, 1, 13, 3, Q("1.0000002 in")))
sketch2.addConstraint(Sketcher.Constraint("Radius", 0, Q("1.5625 in")))
sketch2.addConstraint(Sketcher.Constraint("Radius", 5, Q("0.077 in")))
sketch2.addConstraint(Sketcher.Constraint("Radius", 13, Q("0.6249998 in")))
sketch2.addConstraint(Sketcher.Constraint("DistanceY", 39, 2, 39, 1, Q("0.75 in")))
sketch2.addConstraint(Sketcher.Constraint("DistanceY", -1, 1, 43, 2, Q("4.5 in")))
sketch2.addConstraint(Sketcher.Constraint("Radius", 26, Q("1.1565002 in")))
sketch2.addConstraint(Sketcher.Constraint("DistanceY", -1, 1, 13, 3, Q("8.7499999 in")))
sketch2.addConstraint(Sketcher.Constraint("DistanceX", -1, 1, 0, 3, Q("7.625 in")))
sketch2.addConstraint(Sketcher.Constraint("DistanceY", -1, 1, 39, 2, Q("5.875 in")))
sketch2.addConstraint(Sketcher.Constraint("Radius", 18, Q("2.15265 mm")))
sketch2.addConstraint(Sketcher.Constraint("DistanceX", -1, 1, 7, 3, Q("162.2441 mm")))
sketch2.addConstraint(Sketcher.Constraint("DistanceY", -1, 1, 9, 3, Q("86.1029 mm")))
sketch2.addConstraint(Sketcher.Constraint("DistanceX", -1, 1, 18, 3, Q("39.4092 mm")))
sketch2.addConstraint(Sketcher.Constraint("DistanceY", -1, 1, 18, 3, Q("208.2408 mm")))
sketch2.addConstraint(Sketcher.Constraint("DistanceX", -1, 1, 21, 3, Q("11.3908 mm")))
sketch2.addConstraint(Sketcher.Constraint("DistanceY", -1, 1, 22, 3, Q("236.259199 mm")))
sketch2.addConstraint(Sketcher.Constraint("DistanceX", -1, 1, 1, 2, Q("221.7383 mm")))
sketch2.addConstraint(Sketcher.Constraint("DistanceX", -1, 1, 52, 1, Q("103.513602 mm")))
sketch2.addConstraint(Sketcher.Constraint("DistanceX", -1, 1, 59, 1, Q("99.838798 mm")))
sketch2.addConstraint(Sketcher.Constraint("DistanceX", 40, 1, 40, 2, Q("86.641395 mm")))
sketch2.addConstraint(Sketcher.Constraint("DistanceY", -1, 1, 26, 3, Q("281.46741 mm")))
sketch2.addConstraint(Sketcher.Constraint("DistanceX", -1, 1, 29, 3, Q("99.772558 mm")))
sketch2.addConstraint(Sketcher.Constraint("DistanceX", -1, 1, 31, 3, Q("123.34573 mm")))
sketch2.addConstraint(Sketcher.Constraint("DistanceX", -1, 1, 33, 3, Q("76.19939 mm")))
sketch2.addConstraint(Sketcher.Constraint("DistanceY", -1, 1, 33, 3, Q("257.894238 mm")))
sketch2.addConstraint(Sketcher.Constraint("DistanceY", -1, 1, 35, 3, Q("305.04058 mm")))
sketch2.addConstraint(Sketcher.Constraint("DistanceX", -1, 1, 48, 3, Q("77.787782 mm")))
sketch2.addConstraint(Sketcher.Constraint("DistanceY", -1, 1, 52, 3, Q("31.09883 mm")))
sketch2.addConstraint(Sketcher.Constraint("DistanceY", -1, 1, 10, 1, Q("84.71994 mm")))
sketch2.addConstraint(Sketcher.Constraint("DistanceX", -1, 1, 14, 2, Q("36.62532 mm")))
sketch2.addConstraint(Sketcher.Constraint("DistanceX", -1, 1, 27, 2, Q("120.54389 mm")))
sketch2.addConstraint(Sketcher.Constraint("DistanceY", -1, 1, 32, 1, Q("259.416389 mm")))
sketch2.addConstraint(Sketcher.Constraint("DistanceX", -1, 1, 48, 2, Q("98.559112 mm")))
sketch2.addConstraint(Sketcher.Constraint("DistanceY", -1, 1, 50, 2, Q("33.90067 mm")))
sketch2.addConstraint(Sketcher.Constraint("DistanceX", -1, 1, 55, 1, Q("55.73676 mm")))
sketch2.addConstraint(Sketcher.Constraint("DistanceY", -1, 1, 57, 1, Q("76.723022 mm")))
sketch2.addConstraint(Sketcher.Constraint("DistanceX", -1, 1, 5, 3, Q("225.105896 mm")))
sketch2.addConstraint(Sketcher.Constraint("DistanceY", -1, 1, 5, 3, Q("23.241107 mm")))
sketch2.addConstraint(Sketcher.Constraint("DistanceX", -1, 1, 19, 1, Q("37.887046 mm")))
pocket1 = body.newObject("PartDesign::Pocket", "Pocket")
pocket1.Profile = sketch2
pocket1.Length = Q("1 in")

doc.recompute()
